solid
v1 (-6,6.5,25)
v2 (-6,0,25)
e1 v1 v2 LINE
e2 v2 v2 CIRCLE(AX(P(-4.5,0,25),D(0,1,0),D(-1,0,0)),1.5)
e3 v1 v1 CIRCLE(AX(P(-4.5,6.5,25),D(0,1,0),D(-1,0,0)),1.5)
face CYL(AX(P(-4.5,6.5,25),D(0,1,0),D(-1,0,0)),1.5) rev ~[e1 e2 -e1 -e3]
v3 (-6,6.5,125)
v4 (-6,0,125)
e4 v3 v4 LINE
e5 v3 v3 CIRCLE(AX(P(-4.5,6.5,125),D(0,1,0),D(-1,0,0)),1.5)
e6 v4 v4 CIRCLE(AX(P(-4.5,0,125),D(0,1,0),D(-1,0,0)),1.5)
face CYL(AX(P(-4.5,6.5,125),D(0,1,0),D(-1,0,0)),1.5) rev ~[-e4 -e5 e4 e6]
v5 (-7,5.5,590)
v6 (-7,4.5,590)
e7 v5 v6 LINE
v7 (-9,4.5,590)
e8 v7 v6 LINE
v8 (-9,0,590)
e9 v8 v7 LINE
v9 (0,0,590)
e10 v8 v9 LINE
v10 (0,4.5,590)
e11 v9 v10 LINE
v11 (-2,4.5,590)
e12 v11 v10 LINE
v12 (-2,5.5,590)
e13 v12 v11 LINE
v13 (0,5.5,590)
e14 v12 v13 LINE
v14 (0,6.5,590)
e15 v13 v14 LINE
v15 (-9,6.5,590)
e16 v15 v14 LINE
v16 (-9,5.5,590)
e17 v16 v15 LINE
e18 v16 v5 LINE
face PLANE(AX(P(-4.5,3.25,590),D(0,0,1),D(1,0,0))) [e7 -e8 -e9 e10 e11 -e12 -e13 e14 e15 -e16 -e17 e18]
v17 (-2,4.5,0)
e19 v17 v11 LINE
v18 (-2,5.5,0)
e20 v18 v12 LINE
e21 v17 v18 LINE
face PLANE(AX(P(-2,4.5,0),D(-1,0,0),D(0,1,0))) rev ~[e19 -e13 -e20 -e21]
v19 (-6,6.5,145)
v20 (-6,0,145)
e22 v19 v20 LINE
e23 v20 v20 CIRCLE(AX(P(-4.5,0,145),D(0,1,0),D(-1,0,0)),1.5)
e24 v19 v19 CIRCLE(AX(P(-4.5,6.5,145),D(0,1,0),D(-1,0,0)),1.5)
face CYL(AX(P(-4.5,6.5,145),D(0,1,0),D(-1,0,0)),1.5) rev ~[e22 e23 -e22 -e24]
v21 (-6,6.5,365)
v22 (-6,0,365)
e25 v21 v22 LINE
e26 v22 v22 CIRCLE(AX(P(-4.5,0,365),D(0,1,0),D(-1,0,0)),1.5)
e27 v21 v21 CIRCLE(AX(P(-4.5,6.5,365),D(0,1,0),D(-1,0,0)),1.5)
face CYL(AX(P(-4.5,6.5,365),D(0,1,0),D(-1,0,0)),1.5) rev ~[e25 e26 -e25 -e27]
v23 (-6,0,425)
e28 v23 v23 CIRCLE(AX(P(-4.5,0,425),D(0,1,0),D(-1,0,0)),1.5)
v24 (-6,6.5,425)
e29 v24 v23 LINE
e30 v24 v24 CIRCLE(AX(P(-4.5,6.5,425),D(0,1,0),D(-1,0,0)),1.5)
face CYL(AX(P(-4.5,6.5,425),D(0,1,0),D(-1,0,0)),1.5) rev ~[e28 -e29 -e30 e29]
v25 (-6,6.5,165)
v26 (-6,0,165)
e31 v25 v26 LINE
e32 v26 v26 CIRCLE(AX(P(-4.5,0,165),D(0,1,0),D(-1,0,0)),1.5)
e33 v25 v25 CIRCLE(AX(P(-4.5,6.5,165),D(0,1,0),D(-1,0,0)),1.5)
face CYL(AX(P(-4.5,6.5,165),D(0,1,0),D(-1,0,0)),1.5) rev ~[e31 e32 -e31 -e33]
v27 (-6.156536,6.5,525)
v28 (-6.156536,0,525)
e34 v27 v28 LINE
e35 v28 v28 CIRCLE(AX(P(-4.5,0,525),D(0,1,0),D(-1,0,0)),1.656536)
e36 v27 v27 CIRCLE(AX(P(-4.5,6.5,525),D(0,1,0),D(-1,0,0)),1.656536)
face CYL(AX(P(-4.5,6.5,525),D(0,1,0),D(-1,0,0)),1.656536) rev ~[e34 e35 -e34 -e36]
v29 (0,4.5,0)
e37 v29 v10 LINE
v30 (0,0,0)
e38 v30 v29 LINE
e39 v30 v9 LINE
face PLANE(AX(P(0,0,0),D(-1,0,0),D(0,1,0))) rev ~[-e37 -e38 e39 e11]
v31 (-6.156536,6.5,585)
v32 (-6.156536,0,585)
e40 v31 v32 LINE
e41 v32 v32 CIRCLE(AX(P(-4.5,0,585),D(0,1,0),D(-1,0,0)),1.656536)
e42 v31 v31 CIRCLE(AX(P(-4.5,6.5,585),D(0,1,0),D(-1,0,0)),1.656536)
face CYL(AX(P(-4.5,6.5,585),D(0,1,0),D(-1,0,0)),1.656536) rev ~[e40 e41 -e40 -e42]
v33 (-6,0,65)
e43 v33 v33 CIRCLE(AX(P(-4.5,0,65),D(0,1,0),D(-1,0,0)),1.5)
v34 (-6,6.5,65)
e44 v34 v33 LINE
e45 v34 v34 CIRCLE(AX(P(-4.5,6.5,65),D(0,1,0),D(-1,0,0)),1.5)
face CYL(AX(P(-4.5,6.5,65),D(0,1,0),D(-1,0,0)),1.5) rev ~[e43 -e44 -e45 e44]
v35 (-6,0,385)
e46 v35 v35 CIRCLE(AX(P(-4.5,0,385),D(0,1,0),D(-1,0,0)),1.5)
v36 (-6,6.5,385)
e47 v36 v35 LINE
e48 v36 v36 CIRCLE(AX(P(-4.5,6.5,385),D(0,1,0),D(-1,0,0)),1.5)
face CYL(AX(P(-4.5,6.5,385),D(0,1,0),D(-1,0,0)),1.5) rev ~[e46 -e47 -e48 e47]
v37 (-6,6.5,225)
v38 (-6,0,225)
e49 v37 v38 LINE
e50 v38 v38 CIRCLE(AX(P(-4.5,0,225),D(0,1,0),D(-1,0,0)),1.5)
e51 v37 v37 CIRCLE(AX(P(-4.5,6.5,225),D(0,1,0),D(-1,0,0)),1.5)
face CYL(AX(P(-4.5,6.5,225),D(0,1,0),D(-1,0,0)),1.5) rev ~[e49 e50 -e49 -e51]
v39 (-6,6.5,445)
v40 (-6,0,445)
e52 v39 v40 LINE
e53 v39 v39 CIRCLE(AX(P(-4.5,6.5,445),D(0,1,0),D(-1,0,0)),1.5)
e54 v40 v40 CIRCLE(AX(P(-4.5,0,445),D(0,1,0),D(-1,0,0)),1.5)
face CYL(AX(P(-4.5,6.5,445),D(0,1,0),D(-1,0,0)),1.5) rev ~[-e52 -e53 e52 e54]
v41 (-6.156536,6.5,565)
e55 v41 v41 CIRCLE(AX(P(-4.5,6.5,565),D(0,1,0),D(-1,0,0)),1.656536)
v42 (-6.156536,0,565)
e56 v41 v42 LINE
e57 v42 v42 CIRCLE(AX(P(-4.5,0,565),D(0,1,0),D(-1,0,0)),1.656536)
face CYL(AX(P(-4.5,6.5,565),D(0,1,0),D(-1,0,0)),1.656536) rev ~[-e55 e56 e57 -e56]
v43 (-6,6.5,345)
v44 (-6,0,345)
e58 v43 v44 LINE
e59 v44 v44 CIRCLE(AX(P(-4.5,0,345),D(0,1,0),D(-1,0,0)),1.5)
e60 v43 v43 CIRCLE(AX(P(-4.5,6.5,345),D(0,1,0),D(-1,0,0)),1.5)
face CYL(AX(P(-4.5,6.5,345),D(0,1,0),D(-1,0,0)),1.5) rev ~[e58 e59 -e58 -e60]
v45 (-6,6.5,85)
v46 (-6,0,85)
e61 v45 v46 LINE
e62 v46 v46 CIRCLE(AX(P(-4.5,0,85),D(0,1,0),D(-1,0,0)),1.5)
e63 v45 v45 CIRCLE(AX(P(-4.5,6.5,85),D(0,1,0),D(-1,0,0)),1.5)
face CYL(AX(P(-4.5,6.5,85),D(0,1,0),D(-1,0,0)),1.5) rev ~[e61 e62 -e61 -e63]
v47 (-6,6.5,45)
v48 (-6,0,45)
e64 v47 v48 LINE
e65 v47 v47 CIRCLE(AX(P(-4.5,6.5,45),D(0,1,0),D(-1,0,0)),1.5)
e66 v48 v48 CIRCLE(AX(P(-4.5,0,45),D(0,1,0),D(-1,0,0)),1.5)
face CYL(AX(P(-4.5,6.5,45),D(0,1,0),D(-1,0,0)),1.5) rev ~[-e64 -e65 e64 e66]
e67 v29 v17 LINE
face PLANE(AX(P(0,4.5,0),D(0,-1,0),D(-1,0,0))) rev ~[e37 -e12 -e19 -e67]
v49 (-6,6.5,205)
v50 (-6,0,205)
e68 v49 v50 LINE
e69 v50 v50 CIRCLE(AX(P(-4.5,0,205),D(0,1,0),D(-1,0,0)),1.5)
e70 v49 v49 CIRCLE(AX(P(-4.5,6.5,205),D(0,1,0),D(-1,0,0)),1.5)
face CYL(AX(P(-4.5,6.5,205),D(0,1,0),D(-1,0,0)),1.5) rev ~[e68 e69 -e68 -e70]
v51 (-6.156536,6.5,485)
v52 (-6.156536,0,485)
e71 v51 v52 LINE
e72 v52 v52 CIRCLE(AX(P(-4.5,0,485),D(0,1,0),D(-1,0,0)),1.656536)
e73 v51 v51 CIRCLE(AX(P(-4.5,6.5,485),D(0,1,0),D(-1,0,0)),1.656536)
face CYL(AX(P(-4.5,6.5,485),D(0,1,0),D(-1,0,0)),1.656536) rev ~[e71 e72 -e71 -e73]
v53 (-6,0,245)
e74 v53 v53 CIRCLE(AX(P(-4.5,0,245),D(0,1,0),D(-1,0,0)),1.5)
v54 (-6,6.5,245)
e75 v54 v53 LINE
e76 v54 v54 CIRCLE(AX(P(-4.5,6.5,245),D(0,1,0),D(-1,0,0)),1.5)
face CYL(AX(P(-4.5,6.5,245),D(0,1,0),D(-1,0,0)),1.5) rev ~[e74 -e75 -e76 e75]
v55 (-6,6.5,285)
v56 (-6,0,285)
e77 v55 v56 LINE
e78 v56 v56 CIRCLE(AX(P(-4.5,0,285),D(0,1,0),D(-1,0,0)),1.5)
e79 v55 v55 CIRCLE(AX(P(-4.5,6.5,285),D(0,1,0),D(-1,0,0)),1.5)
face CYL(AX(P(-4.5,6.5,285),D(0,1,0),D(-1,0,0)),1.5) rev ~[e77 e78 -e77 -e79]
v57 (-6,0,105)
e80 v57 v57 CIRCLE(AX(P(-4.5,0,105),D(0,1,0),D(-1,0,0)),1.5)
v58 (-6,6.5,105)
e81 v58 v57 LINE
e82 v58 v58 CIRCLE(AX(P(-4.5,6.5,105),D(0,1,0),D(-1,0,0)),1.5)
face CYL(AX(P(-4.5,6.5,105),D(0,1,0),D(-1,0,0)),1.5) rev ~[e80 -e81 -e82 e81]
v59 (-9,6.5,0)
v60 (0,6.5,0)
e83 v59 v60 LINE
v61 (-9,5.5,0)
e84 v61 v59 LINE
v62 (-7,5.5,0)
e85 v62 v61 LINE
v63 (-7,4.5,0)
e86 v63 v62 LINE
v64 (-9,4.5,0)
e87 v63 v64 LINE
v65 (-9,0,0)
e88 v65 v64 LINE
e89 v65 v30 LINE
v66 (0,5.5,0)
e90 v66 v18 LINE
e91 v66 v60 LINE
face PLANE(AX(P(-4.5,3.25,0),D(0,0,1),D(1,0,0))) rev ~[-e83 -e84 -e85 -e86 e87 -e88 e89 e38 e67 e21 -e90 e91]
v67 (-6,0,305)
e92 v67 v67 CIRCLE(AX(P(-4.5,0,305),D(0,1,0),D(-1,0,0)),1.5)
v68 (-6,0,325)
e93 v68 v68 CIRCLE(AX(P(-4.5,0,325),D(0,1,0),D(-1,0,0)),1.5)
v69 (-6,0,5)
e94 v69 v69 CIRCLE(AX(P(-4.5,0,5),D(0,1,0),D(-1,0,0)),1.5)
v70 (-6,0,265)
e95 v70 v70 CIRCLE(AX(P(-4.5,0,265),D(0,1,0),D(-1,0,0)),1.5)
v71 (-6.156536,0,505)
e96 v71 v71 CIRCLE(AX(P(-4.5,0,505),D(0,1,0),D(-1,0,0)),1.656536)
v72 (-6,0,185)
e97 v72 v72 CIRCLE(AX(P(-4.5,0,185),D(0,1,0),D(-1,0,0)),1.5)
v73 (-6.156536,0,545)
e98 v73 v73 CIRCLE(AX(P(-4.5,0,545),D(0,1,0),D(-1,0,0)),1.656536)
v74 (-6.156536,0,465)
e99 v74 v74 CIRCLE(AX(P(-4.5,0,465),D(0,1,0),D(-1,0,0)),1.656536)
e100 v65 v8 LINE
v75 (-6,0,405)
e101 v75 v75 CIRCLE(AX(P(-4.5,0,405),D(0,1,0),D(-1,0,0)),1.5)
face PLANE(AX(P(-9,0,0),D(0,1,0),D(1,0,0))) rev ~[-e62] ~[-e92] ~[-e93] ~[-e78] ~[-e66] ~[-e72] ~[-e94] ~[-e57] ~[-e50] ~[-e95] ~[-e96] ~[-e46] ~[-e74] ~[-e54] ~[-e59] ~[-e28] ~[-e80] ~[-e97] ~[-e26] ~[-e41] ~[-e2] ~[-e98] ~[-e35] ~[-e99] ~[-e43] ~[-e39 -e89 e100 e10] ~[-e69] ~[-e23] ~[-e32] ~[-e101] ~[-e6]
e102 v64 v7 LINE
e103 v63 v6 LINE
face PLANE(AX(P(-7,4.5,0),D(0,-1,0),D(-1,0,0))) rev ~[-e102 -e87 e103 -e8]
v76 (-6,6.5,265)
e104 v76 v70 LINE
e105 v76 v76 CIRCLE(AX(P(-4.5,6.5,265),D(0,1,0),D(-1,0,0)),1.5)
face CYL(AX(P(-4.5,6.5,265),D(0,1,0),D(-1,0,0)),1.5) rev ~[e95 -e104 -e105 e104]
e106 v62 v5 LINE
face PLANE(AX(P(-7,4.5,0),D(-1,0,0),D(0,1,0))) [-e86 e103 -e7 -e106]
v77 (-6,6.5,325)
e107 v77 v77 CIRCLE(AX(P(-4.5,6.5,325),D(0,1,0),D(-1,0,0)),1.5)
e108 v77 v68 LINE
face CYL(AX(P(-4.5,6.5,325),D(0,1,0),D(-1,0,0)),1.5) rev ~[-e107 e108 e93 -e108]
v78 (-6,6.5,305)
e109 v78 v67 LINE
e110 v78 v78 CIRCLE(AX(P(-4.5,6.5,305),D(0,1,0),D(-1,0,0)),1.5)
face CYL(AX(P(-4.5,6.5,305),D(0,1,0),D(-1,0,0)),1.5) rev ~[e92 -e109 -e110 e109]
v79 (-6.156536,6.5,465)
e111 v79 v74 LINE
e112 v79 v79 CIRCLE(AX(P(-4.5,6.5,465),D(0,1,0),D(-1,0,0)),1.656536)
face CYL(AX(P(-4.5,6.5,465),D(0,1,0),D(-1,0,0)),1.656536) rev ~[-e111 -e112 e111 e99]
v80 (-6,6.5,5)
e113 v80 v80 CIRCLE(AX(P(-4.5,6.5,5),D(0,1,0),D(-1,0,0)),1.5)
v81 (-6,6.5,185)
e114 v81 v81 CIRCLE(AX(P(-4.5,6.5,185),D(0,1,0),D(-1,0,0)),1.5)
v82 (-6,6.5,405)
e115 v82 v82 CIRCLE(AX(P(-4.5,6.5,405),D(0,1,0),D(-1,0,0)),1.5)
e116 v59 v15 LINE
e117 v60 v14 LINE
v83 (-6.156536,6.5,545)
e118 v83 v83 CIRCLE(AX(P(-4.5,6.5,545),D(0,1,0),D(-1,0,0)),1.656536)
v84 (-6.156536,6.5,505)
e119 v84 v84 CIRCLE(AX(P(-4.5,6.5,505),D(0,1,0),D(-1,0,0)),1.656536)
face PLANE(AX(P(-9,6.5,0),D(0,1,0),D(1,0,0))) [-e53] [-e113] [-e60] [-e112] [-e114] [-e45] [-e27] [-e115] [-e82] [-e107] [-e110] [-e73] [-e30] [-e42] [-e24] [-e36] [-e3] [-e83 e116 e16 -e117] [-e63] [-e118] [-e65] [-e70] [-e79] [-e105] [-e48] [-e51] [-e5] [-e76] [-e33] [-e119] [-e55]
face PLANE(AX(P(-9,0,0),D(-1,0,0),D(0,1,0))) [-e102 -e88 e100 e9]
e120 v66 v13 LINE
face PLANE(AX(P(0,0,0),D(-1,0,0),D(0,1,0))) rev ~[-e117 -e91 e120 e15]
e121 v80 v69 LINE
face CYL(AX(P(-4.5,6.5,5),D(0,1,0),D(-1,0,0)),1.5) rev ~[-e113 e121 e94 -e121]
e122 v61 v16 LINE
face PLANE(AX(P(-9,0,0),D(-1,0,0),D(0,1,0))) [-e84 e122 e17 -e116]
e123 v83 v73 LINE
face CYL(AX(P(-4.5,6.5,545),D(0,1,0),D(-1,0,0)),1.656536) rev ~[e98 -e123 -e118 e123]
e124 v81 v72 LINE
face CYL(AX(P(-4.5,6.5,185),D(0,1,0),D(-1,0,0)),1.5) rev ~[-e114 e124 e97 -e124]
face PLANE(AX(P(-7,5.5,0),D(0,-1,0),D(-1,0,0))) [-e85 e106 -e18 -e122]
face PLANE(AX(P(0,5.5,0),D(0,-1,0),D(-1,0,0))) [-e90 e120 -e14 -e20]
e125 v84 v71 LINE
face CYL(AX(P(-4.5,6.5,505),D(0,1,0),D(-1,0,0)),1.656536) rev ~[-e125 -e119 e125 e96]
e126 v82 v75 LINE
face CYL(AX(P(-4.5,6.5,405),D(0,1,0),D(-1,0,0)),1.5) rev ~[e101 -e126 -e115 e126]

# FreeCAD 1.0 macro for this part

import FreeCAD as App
import Part
import Sketcher
from FreeCAD import Vector

doc = App.newDocument("Part")
body = doc.addObject("PartDesign::Body", "Body")

sketch1 = body.newObject("Sketcher::SketchObject", "Sketch")
sketch1.AttachmentSupport = (doc.getObject("XY_Plane"), [""])
sketch1.MapMode = "FlatFace"
sketch1.addGeometry([
    Part.LineSegment(Vector(-9, 6, 0), Vector(-9, 0, 0)),
    Part.LineSegment(Vector(-9, 0, 0), Vector(0, 0, 0)),
    Part.LineSegment(Vector(0, 0, 0), Vector(0, 6, 0)),
    Part.LineSegment(Vector(0, 6, 0), Vector(-9, 6, 0)),
], False)
sketch1.addConstraint([
    Sketcher.Constraint("Coincident", 0, 2, 1, 1),
    Sketcher.Constraint("Coincident", 1, 2, 2, 1),
    Sketcher.Constraint("Coincident", 2, 2, 3, 1),
    Sketcher.Constraint("Coincident", 3, 2, 0, 1),
    Sketcher.Constraint("Vertical", 0),
    Sketcher.Constraint("Horizontal", 1),
    Sketcher.Constraint("Vertical", 2),
    Sketcher.Constraint("Horizontal", 3),
    Sketcher.Constraint("Coincident", 1, 2, -1, 1),
    Sketcher.Constraint("DistanceX", 1, 1, 1, 2, 9.0),
    Sketcher.Constraint("DistanceY", 0, 2, 0, 1, 6.5),
])
pad1 = body.newObject("PartDesign::Pad", "Pad")
pad1.Profile = sketch1
pad1.Length = 590

sketch2 = body.newObject("Sketcher::SketchObject", "Sketch001")
sketch2.AttachmentSupport = (doc.getObject("XY_Plane"), [""])
sketch2.MapMode = "FlatFace"
sketch2.addGeometry([
    Part.LineSegment(Vector(0, 5.5, 0), Vector(0, 4.5, 0)),
    Part.LineSegment(Vector(0, 4.5, 0), Vector(-2, 4.5, 0)),
    Part.LineSegment(Vector(-2, 4.5, 0), Vector(-2, 5.5, 0)),
    Part.LineSegment(Vector(-2, 5.5, 0), Vector(0, 5.5, 0)),
    Part.LineSegment(Vector(-7, 5.5, 0), Vector(-7, 4.5, 0)),
    Part.LineSegment(Vector(-7, 4.5, 0), Vector(-9, 4.5, 0)),
    Part.LineSegment(Vector(-9, 4.5, 0), Vector(-9, 5.5, 0)),
    Part.LineSegment(Vector(-9, 5.5, 0), Vector(-7, 5.5, 0)),
], False)
sketch2.addConstraint([
    Sketcher.Constraint("Coincident", 0, 2, 1, 1),
    Sketcher.Constraint("Coincident", 1, 2, 2, 1),
    Sketcher.Constraint("Coincident", 2, 2, 3, 1),
    Sketcher.Constraint("Coincident", 3, 2, 0, 1),
    Sketcher.Constraint("Coincident", 4, 2, 5, 1),
    Sketcher.Constraint("Coincident", 5, 2, 6, 1),
    Sketcher.Constraint("Coincident", 6, 2, 7, 1),
    Sketcher.Constraint("Coincident", 7, 2, 4, 1),
    Sketcher.Constraint("Vertical", 0),
    Sketcher.Constraint("Horizontal", 1),
    Sketcher.Constraint("Vertical", 2),
    Sketcher.Constraint("Horizontal", 3),
    Sketcher.Constraint("Vertical", 4),
    Sketcher.Constraint("Horizontal", 5),
    Sketcher.Constraint("Vertical", 6),
    Sketcher.Constraint("Horizontal", 7),
    Sketcher.Constraint("PointOnObject", 0, 2, -2),
    Sketcher.Constraint("Horizontal", 1, 2, 4, 2),
    Sketcher.Constraint("Horizontal", 3, 2, 6, 2),
    Sketcher.Constraint("Equal", 3, 5),
    Sketcher.Constraint("DistanceX", 1, 2, 1, 1, 2.0),
    Sketcher.Constraint("DistanceY", 0, 2, 0, 1, 1.0),
    Sketcher.Constraint("DistanceX", 4, 2, -1, 1, 7.0),
    Sketcher.Constraint("DistanceY", -1, 1, 0, 2, 4.5),
])
pocket1 = body.newObject("PartDesign::Pocket", "Pocket")
pocket1.Profile = sketch2
pocket1.Length = 610
pocket1.Reversed = True

sketch3 = body.newObject("Sketcher::SketchObject", "Sketch002")
sketch3.AttachmentSupport = (doc.getObject("XZ_Plane"), [""])
sketch3.MapMode = "FlatFace"
sketch3.AttachmentOffset = App.Placement(Vector(0, 0, -6.5), App.Rotation())
sketch3.addGeometry(Part.Circle(Vector(-4.5, 5, 0), Vector(0, 0, 1), 1.5), False)
sketch3.addConstraint([
    Sketcher.Constraint("Diameter", 0, 3.0),
    Sketcher.Constraint("DistanceY", -1, 1, 0, 3, 5.0),
    Sketcher.Constraint("DistanceX", 0, 3, -1, 1, 4.5),
])
pocket2 = body.newObject("PartDesign::Pocket", "Pocket001")
pocket2.Profile = sketch3
pocket2.Type = "UpToFirst"
pocket2.Reversed = True

sketch4 = body.newObject("Sketcher::SketchObject", "Sketch003")
sketch4.AttachmentSupport = (doc.getObject("XZ_Plane"), [""])
sketch4.MapMode = "FlatFace"
sketch4.AttachmentOffset = App.Placement(Vector(0, 0, -6.5), App.Rotation())
sketch4.addGeometry(Part.Circle(Vector(-4.5, 25, 0), Vector(0, 0, 1), 1.5), False)
sketch4.addConstraint([
    Sketcher.Constraint("Diameter", 0, 3.0),
    Sketcher.Constraint("DistanceY", -1, 1, 0, 3, 25.0),
    Sketcher.Constraint("DistanceX", 0, 3, -1, 1, 4.5),
])
pocket3 = body.newObject("PartDesign::Pocket", "Pocket002")
pocket3.Profile = sketch4
pocket3.Type = "UpToFirst"
pocket3.Reversed = True

sketch5 = body.newObject("Sketcher::SketchObject", "Sketch004")
sketch5.AttachmentSupport = (doc.getObject("XZ_Plane"), [""])
sketch5.MapMode = "FlatFace"
sketch5.AttachmentOffset = App.Placement(Vector(0, 0, -6.5), App.Rotation())
sketch5.addGeometry(Part.Circle(Vector(-4.5, 45, 0), Vector(0, 0, 1), 1.5), False)
sketch5.addConstraint([
    Sketcher.Constraint("Diameter", 0, 3.0),
    Sketcher.Constraint("DistanceY", -1, 1, 0, 3, 45.0),
    Sketcher.Constraint("DistanceX", 0, 3, -1, 1, 4.5),
])
pocket4 = body.newObject("PartDesign::Pocket", "Pocket003")
pocket4.Profile = sketch5
pocket4.Type = "UpToFirst"
pocket4.Reversed = True

sketch6 = body.newObject("Sketcher::SketchObject", "Sketch005")
sketch6.AttachmentSupport = (doc.getObject("XZ_Plane"), [""])
sketch6.MapMode = "FlatFace"
sketch6.AttachmentOffset = App.Placement(Vector(0, 0, -6.5), App.Rotation())
sketch6.addGeometry(Part.Circle(Vector(-4.5, 65, 0), Vector(0, 0, 1), 1.5), False)
sketch6.addConstraint([
    Sketcher.Constraint("Diameter", 0, 3.0),
    Sketcher.Constraint("DistanceY", -1, 1, 0, 3, 65.0),
    Sketcher.Constraint("DistanceX", 0, 3, -1, 1, 4.5),
])
pocket5 = body.newObject("PartDesign::Pocket", "Pocket004")
pocket5.Profile = sketch6
pocket5.Type = "UpToFirst"
pocket5.Reversed = True

sketch7 = body.newObject("Sketcher::SketchObject", "Sketch006")
sketch7.AttachmentSupport = (doc.getObject("XZ_Plane"), [""])
sketch7.MapMode = "FlatFace"
sketch7.AttachmentOffset = App.Placement(Vector(0, 0, -6.5), App.Rotation())
sketch7.addGeometry(Part.Circle(Vector(-4.5, 85, 0), Vector(0, 0, 1), 1.5), False)
sketch7.addConstraint([
    Sketcher.Constraint("Diameter", 0, 3.0),
    Sketcher.Constraint("DistanceY", -1, 1, 0, 3, 85.0),
    Sketcher.Constraint("DistanceX", 0, 3, -1, 1, 4.5),
])
pocket6 = body.newObject("PartDesign::Pocket", "Pocket005")
pocket6.Profile = sketch7
pocket6.Type = "UpToFirst"
pocket6.Reversed = True

sketch8 = body.newObject("Sketcher::SketchObject", "Sketch007")
sketch8.AttachmentSupport = (doc.getObject("XZ_Plane"), [""])
sketch8.MapMode = "FlatFace"
sketch8.AttachmentOffset = App.Placement(Vector(0, 0, -6.5), App.Rotation())
sketch8.addGeometry(Part.Circle(Vector(-4.5, 105, 0), Vector(0, 0, 1), 1.5), False)
sketch8.addConstraint([
    Sketcher.Constraint("Diameter", 0, 3.0),
    Sketcher.Constraint("DistanceY", -1, 1, 0, 3, 105.0),
    Sketcher.Constraint("DistanceX", 0, 3, -1, 1, 4.5),
])
pocket7 = body.newObject("PartDesign::Pocket", "Pocket006")
pocket7.Profile = sketch8
pocket7.Type = "UpToFirst"
pocket7.Reversed = True

sketch9 = body.newObject("Sketcher::SketchObject", "Sketch008")
sketch9.AttachmentSupport = (doc.getObject("XZ_Plane"), [""])
sketch9.MapMode = "FlatFace"
sketch9.AttachmentOffset = App.Placement(Vector(0, 0, -6.5), App.Rotation())
sketch9.addGeometry(Part.Circle(Vector(-4.5, 125, 0), Vector(0, 0, 1), 1.5), False)
sketch9.addConstraint([
    Sketcher.Constraint("Diameter", 0, 3.0),
    Sketcher.Constraint("DistanceY", -1, 1, 0, 3, 125.0),
    Sketcher.Constraint("DistanceX", 0, 3, -1, 1, 4.5),
])
pocket8 = body.newObject("PartDesign::Pocket", "Pocket007")
pocket8.Profile = sketch9
pocket8.Type = "UpToFirst"
pocket8.Reversed = True

sketch10 = body.newObject("Sketcher::SketchObject", "Sketch009")
sketch10.AttachmentSupport = (doc.getObject("XZ_Plane"), [""])
sketch10.MapMode = "FlatFace"
sketch10.AttachmentOffset = App.Placement(Vector(0, 0, -6.5), App.Rotation())
sketch10.addGeometry(Part.Circle(Vector(-4.5, 145, 0), Vector(0, 0, 1), 1.5), False)
sketch10.addConstraint([
    Sketcher.Constraint("Diameter", 0, 3.0),
    Sketcher.Constraint("DistanceY", -1, 1, 0, 3, 145.0),
    Sketcher.Constraint("DistanceX", 0, 3, -1, 1, 4.5),
])
pocket9 = body.newObject("PartDesign::Pocket", "Pocket008")
pocket9.Profile = sketch10
pocket9.Type = "UpToFirst"
pocket9.Reversed = True

sketch11 = body.newObject("Sketcher::SketchObject", "Sketch010")
sketch11.AttachmentSupport = (doc.getObject("XZ_Plane"), [""])
sketch11.MapMode = "FlatFace"
sketch11.AttachmentOffset = App.Placement(Vector(0, 0, -6.5), App.Rotation())
sketch11.addGeometry(Part.Circle(Vector(-4.5, 165, 0), Vector(0, 0, 1), 1.5), False)
sketch11.addConstraint([
    Sketcher.Constraint("Diameter", 0, 3.0),
    Sketcher.Constraint("DistanceY", -1, 1, 0, 3, 165.0),
    Sketcher.Constraint("DistanceX", 0, 3, -1, 1, 4.5),
])
pocket10 = body.newObject("PartDesign::Pocket", "Pocket009")
pocket10.Profile = sketch11
pocket10.Type = "UpToFirst"
pocket10.Reversed = True

sketch12 = body.newObject("Sketcher::SketchObject", "Sketch011")
sketch12.AttachmentSupport = (doc.getObject("XZ_Plane"), [""])
sketch12.MapMode = "FlatFace"
sketch12.AttachmentOffset = App.Placement(Vector(0, 0, -6.5), App.Rotation())
sketch12.addGeometry(Part.Circle(Vector(-4.5, 185, 0), Vector(0, 0, 1), 1.5), False)
sketch12.addConstraint([
    Sketcher.Constraint("Diameter", 0, 3.0),
    Sketcher.Constraint("DistanceY", -1, 1, 0, 3, 185.0),
    Sketcher.Constraint("DistanceX", 0, 3, -1, 1, 4.5),
])
pocket11 = body.newObject("PartDesign::Pocket", "Pocket010")
pocket11.Profile = sketch12
pocket11.Type = "UpToFirst"
pocket11.Reversed = True

sketch13 = body.newObject("Sketcher::SketchObject", "Sketch012")
sketch13.AttachmentSupport = (doc.getObject("XZ_Plane"), [""])
sketch13.MapMode = "FlatFace"
sketch13.AttachmentOffset = App.Placement(Vector(0, 0, -6.5), App.Rotation())
sketch13.addGeometry(Part.Circle(Vector(-4.5, 205, 0), Vector(0, 0, 1), 1.5), False)
sketch13.addConstraint([
    Sketcher.Constraint("Diameter", 0, 3.0),
    Sketcher.Constraint("DistanceY", -1, 1, 0, 3, 205.0),
    Sketcher.Constraint("DistanceX", 0, 3, -1, 1, 4.5),
])
pocket12 = body.newObject("PartDesign::Pocket", "Pocket011")
pocket12.Profile = sketch13
pocket12.Type = "UpToFirst"
pocket12.Reversed = True

sketch14 = body.newObject("Sketcher::SketchObject", "Sketch013")
sketch14.AttachmentSupport = (doc.getObject("XZ_Plane"), [""])
sketch14.MapMode = "FlatFace"
sketch14.AttachmentOffset = App.Placement(Vector(0, 0, -6.5), App.Rotation())
sketch14.addGeometry(Part.Circle(Vector(-4.5, 225, 0), Vector(0, 0, 1), 1.5), False)
sketch14.addConstraint([
    Sketcher.Constraint("Diameter", 0, 3.0),
    Sketcher.Constraint("DistanceY", -1, 1, 0, 3, 225.0),
    Sketcher.Constraint("DistanceX", 0, 3, -1, 1, 4.5),
])
pocket13 = body.newObject("PartDesign::Pocket", "Pocket012")
pocket13.Profile = sketch14
pocket13.Type = "UpToFirst"
pocket13.Reversed = True

sketch15 = body.newObject("Sketcher::SketchObject", "Sketch014")
sketch15.AttachmentSupport = (doc.getObject("XZ_Plane"), [""])
sketch15.MapMode = "FlatFace"
sketch15.AttachmentOffset = App.Placement(Vector(0, 0, -6.5), App.Rotation())
sketch15.addGeometry(Part.Circle(Vector(-4.5, 245, 0), Vector(0, 0, 1), 1.5), False)
sketch15.addConstraint([
    Sketcher.Constraint("Diameter", 0, 3.0),
    Sketcher.Constraint("DistanceY", -1, 1, 0, 3, 245.0),
    Sketcher.Constraint("DistanceX", 0, 3, -1, 1, 4.5),
])
pocket14 = body.newObject("PartDesign::Pocket", "Pocket013")
pocket14.Profile = sketch15
pocket14.Type = "UpToFirst"
pocket14.Reversed = True

sketch16 = body.newObject("Sketcher::SketchObject", "Sketch015")
sketch16.AttachmentSupport = (doc.getObject("XZ_Plane"), [""])
sketch16.MapMode = "FlatFace"
sketch16.AttachmentOffset = App.Placement(Vector(0, 0, -6.5), App.Rotation())
sketch16.addGeometry(Part.Circle(Vector(-4.5, 265, 0), Vector(0, 0, 1), 1.5), False)
sketch16.addConstraint([
    Sketcher.Constraint("Diameter", 0, 3.0),
    Sketcher.Constraint("DistanceY", -1, 1, 0, 3, 265.0),
    Sketcher.Constraint("DistanceX", 0, 3, -1, 1, 4.5),
])
pocket15 = body.newObject("PartDesign::Pocket", "Pocket014")
pocket15.Profile = sketch16
pocket15.Type = "UpToFirst"
pocket15.Reversed = True

sketch17 = body.newObject("Sketcher::SketchObject", "Sketch016")
sketch17.AttachmentSupport = (doc.getObject("XZ_Plane"), [""])
sketch17.MapMode = "FlatFace"
sketch17.AttachmentOffset = App.Placement(Vector(0, 0, -6.5), App.Rotation())
sketch17.addGeometry(Part.Circle(Vector(-4.5, 285, 0), Vector(0, 0, 1), 1.5), False)
sketch17.addConstraint([
    Sketcher.Constraint("Diameter", 0, 3.0),
    Sketcher.Constraint("DistanceY", -1, 1, 0, 3, 285.0),
    Sketcher.Constraint("DistanceX", 0, 3, -1, 1, 4.5),
])
pocket16 = body.newObject("PartDesign::Pocket", "Pocket015")
pocket16.Profile = sketch17
pocket16.Type = "UpToFirst"
pocket16.Reversed = True

sketch18 = body.newObject("Sketcher::SketchObject", "Sketch017")
sketch18.AttachmentSupport = (doc.getObject("XZ_Plane"), [""])
sketch18.MapMode = "FlatFace"
sketch18.AttachmentOffset = App.Placement(Vector(0, 0, -6.5), App.Rotation())
sketch18.addGeometry(Part.Circle(Vector(-4.5, 305, 0), Vector(0, 0, 1), 1.5), False)
sketch18.addConstraint([
    Sketcher.Constraint("Diameter", 0, 3.0),
    Sketcher.Constraint("DistanceY", -1, 1, 0, 3, 305.0),
    Sketcher.Constraint("DistanceX", 0, 3, -1, 1, 4.5),
])
pocket17 = body.newObject("PartDesign::Pocket", "Pocket016")
pocket17.Profile = sketch18
pocket17.Type = "UpToFirst"
pocket17.Reversed = True

sketch19 = body.newObject("Sketcher::SketchObject", "Sketch018")
sketch19.AttachmentSupport = (doc.getObject("XZ_Plane"), [""])
sketch19.MapMode = "FlatFace"
sketch19.AttachmentOffset = App.Placement(Vector(0, 0, -6.5), App.Rotation())
sketch19.addGeometry(Part.Circle(Vector(-4.5, 325, 0), Vector(0, 0, 1), 1.5), False)
sketch19.addConstraint([
    Sketcher.Constraint("Diameter", 0, 3.0),
    Sketcher.Constraint("DistanceY", -1, 1, 0, 3, 325.0),
    Sketcher.Constraint("DistanceX", 0, 3, -1, 1, 4.5),
])
pocket18 = body.newObject("PartDesign::Pocket", "Pocket017")
pocket18.Profile = sketch19
pocket18.Type = "UpToFirst"
pocket18.Reversed = True

sketch20 = body.newObject("Sketcher::SketchObject", "Sketch019")
sketch20.AttachmentSupport = (doc.getObject("XZ_Plane"), [""])
sketch20.MapMode = "FlatFace"
sketch20.AttachmentOffset = App.Placement(Vector(0, 0, -6.5), App.Rotation())
sketch20.addGeometry(Part.Circle(Vector(-4.5, 345, 0), Vector(0, 0, 1), 1.5), False)
sketch20.addConstraint([
    Sketcher.Constraint("Diameter", 0, 3.0),
    Sketcher.Constraint("DistanceY", -1, 1, 0, 3, 345.0),
    Sketcher.Constraint("DistanceX", 0, 3, -1, 1, 4.5),
])
pocket19 = body.newObject("PartDesign::Pocket", "Pocket018")
pocket19.Profile = sketch20
pocket19.Type = "UpToFirst"
pocket19.Reversed = True

sketch21 = body.newObject("Sketcher::SketchObject", "Sketch020")
sketch21.AttachmentSupport = (doc.getObject("XZ_Plane"), [""])
sketch21.MapMode = "FlatFace"
sketch21.AttachmentOffset = App.Placement(Vector(0, 0, -6.5), App.Rotation())
sketch21.addGeometry(Part.Circle(Vector(-4.5, 365, 0), Vector(0, 0, 1), 1.5), False)
sketch21.addConstraint([
    Sketcher.Constraint("Diameter", 0, 3.0),
    Sketcher.Constraint("DistanceY", -1, 1, 0, 3, 365.0),
    Sketcher.Constraint("DistanceX", 0, 3, -1, 1, 4.5),
])
pocket20 = body.newObject("PartDesign::Pocket", "Pocket019")
pocket20.Profile = sketch21
pocket20.Type = "UpToFirst"
pocket20.Reversed = True

sketch22 = body.newObject("Sketcher::SketchObject", "Sketch021")
sketch22.AttachmentSupport = (doc.getObject("XZ_Plane"), [""])
sketch22.MapMode = "FlatFace"
sketch22.AttachmentOffset = App.Placement(Vector(0, 0, -6.5), App.Rotation())
sketch22.addGeometry(Part.Circle(Vector(-4.5, 385, 0), Vector(0, 0, 1), 1.5), False)
sketch22.addConstraint([
    Sketcher.Constraint("Diameter", 0, 3.0),
    Sketcher.Constraint("DistanceY", -1, 1, 0, 3, 385.0),
    Sketcher.Constraint("DistanceX", 0, 3, -1, 1, 4.5),
])
pocket21 = body.newObject("PartDesign::Pocket", "Pocket020")
pocket21.Profile = sketch22
pocket21.Type = "UpToFirst"
pocket21.Reversed = True

sketch23 = body.newObject("Sketcher::SketchObject", "Sketch022")
sketch23.AttachmentSupport = (doc.getObject("XZ_Plane"), [""])
sketch23.MapMode = "FlatFace"
sketch23.AttachmentOffset = App.Placement(Vector(0, 0, -6.5), App.Rotation())
sketch23.addGeometry(Part.Circle(Vector(-4.5, 405, 0), Vector(0, 0, 1), 1.5), False)
sketch23.addConstraint([
    Sketcher.Constraint("Diameter", 0, 3.0),
    Sketcher.Constraint("DistanceY", -1, 1, 0, 3, 405.0),
    Sketcher.Constraint("DistanceX", 0, 3, -1, 1, 4.5),
])
pocket22 = body.newObject("PartDesign::Pocket", "Pocket021")
pocket22.Profile = sketch23
pocket22.Type = "UpToFirst"
pocket22.Reversed = True

sketch24 = body.newObject("Sketcher::SketchObject", "Sketch023")
sketch24.AttachmentSupport = (doc.getObject("XZ_Plane"), [""])
sketch24.MapMode = "FlatFace"
sketch24.AttachmentOffset = App.Placement(Vector(0, 0, -6.5), App.Rotation())
sketch24.addGeometry(Part.Circle(Vector(-4.5, 425, 0), Vector(0, 0, 1), 1.5), False)
sketch24.addConstraint([
    Sketcher.Constraint("Diameter", 0, 3.0),
    Sketcher.Constraint("DistanceY", -1, 1, 0, 3, 425.0),
    Sketcher.Constraint("DistanceX", 0, 3, -1, 1, 4.5),
])
pocket23 = body.newObject("PartDesign::Pocket", "Pocket022")
pocket23.Profile = sketch24
pocket23.Type = "UpToFirst"
pocket23.Reversed = True

sketch25 = body.newObject("Sketcher::SketchObject", "Sketch024")
sketch25.AttachmentSupport = (doc.getObject("XZ_Plane"), [""])
sketch25.MapMode = "FlatFace"
sketch25.AttachmentOffset = App.Placement(Vector(0, 0, -6.5), App.Rotation())
sketch25.addGeometry(Part.Circle(Vector(-4.5, 445, 0), Vector(0, 0, 1), 1.5), False)
sketch25.addConstraint([
    Sketcher.Constraint("Diameter", 0, 3.0),
    Sketcher.Constraint("DistanceY", -1, 1, 0, 3, 445.0),
    Sketcher.Constraint("DistanceX", 0, 3, -1, 1, 4.5),
])
pocket24 = body.newObject("PartDesign::Pocket", "Pocket023")
pocket24.Profile = sketch25
pocket24.Type = "UpToFirst"
pocket24.Reversed = True

sketch26 = body.newObject("Sketcher::SketchObject", "Sketch025")
sketch26.AttachmentSupport = (doc.getObject("XZ_Plane"), [""])
sketch26.MapMode = "FlatFace"
sketch26.AttachmentOffset = App.Placement(Vector(0, 0, -6.5), App.Rotation())
sketch26.addGeometry([
    Part.Circle(Vector(-4.5, 465, 0), Vector(0, 0, 1), 1.7),
    Part.Circle(Vector(-4.5, 485, 0), Vector(0, 0, 1), 1.7),
    Part.Circle(Vector(-4.5, 505, 0), Vector(0, 0, 1), 1.7),
    Part.Circle(Vector(-4.5, 525, 0), Vector(0, 0, 1), 1.7),
    Part.Circle(Vector(-4.5, 545, 0), Vector(0, 0, 1), 1.7),
    Part.Circle(Vector(-4.5, 565, 0), Vector(0, 0, 1), 1.7),
    Part.Circle(Vector(-4.5, 585, 0), Vector(0, 0, 1), 1.7),
], False)
sketch26.addConstraint([
    Sketcher.Constraint("Equal", 0, 1),
    Sketcher.Constraint("Equal", 1, 2),
    Sketcher.Constraint("Equal", 2, 3),
    Sketcher.Constraint("Equal", 3, 4),
    Sketcher.Constraint("Equal", 4, 5),
    Sketcher.Constraint("Equal", 5, 6),
    Sketcher.Constraint("Vertical", 0, 3, 1, 3),
    Sketcher.Constraint("Vertical", 1, 3, 2, 3),
    Sketcher.Constraint("Vertical", 2, 3, 3, 3),
    Sketcher.Constraint("Vertical", 3, 3, 4, 3),
    Sketcher.Constraint("Vertical", 4, 3, 5, 3),
    Sketcher.Constraint("Vertical", 5, 3, 6, 3),
    Sketcher.Constraint("DistanceY", -1, 1, 0, 3, 465.0),
    Sketcher.Constraint("DistanceY", -1, 1, 1, 3, 485.0),
    Sketcher.Constraint("DistanceY", -1, 1, 2, 3, 505.0),
    Sketcher.Constraint("DistanceY", -1, 1, 3, 3, 525.0),
    Sketcher.Constraint("DistanceY", -1, 1, 4, 3, 545.0),
    Sketcher.Constraint("DistanceY", -1, 1, 5, 3, 565.0),
    Sketcher.Constraint("DistanceY", -1, 1, 6, 3, 585.0),
    Sketcher.Constraint("DistanceX", 0, 3, -1, 1, 4.5),
    Sketcher.Constraint("Diameter", 0, 3.313071),
])
pocket25 = body.newObject("PartDesign::Pocket", "Pocket024")
pocket25.Profile = sketch26
pocket25.Length = 10
pocket25.Reversed = True

doc.recompute()
